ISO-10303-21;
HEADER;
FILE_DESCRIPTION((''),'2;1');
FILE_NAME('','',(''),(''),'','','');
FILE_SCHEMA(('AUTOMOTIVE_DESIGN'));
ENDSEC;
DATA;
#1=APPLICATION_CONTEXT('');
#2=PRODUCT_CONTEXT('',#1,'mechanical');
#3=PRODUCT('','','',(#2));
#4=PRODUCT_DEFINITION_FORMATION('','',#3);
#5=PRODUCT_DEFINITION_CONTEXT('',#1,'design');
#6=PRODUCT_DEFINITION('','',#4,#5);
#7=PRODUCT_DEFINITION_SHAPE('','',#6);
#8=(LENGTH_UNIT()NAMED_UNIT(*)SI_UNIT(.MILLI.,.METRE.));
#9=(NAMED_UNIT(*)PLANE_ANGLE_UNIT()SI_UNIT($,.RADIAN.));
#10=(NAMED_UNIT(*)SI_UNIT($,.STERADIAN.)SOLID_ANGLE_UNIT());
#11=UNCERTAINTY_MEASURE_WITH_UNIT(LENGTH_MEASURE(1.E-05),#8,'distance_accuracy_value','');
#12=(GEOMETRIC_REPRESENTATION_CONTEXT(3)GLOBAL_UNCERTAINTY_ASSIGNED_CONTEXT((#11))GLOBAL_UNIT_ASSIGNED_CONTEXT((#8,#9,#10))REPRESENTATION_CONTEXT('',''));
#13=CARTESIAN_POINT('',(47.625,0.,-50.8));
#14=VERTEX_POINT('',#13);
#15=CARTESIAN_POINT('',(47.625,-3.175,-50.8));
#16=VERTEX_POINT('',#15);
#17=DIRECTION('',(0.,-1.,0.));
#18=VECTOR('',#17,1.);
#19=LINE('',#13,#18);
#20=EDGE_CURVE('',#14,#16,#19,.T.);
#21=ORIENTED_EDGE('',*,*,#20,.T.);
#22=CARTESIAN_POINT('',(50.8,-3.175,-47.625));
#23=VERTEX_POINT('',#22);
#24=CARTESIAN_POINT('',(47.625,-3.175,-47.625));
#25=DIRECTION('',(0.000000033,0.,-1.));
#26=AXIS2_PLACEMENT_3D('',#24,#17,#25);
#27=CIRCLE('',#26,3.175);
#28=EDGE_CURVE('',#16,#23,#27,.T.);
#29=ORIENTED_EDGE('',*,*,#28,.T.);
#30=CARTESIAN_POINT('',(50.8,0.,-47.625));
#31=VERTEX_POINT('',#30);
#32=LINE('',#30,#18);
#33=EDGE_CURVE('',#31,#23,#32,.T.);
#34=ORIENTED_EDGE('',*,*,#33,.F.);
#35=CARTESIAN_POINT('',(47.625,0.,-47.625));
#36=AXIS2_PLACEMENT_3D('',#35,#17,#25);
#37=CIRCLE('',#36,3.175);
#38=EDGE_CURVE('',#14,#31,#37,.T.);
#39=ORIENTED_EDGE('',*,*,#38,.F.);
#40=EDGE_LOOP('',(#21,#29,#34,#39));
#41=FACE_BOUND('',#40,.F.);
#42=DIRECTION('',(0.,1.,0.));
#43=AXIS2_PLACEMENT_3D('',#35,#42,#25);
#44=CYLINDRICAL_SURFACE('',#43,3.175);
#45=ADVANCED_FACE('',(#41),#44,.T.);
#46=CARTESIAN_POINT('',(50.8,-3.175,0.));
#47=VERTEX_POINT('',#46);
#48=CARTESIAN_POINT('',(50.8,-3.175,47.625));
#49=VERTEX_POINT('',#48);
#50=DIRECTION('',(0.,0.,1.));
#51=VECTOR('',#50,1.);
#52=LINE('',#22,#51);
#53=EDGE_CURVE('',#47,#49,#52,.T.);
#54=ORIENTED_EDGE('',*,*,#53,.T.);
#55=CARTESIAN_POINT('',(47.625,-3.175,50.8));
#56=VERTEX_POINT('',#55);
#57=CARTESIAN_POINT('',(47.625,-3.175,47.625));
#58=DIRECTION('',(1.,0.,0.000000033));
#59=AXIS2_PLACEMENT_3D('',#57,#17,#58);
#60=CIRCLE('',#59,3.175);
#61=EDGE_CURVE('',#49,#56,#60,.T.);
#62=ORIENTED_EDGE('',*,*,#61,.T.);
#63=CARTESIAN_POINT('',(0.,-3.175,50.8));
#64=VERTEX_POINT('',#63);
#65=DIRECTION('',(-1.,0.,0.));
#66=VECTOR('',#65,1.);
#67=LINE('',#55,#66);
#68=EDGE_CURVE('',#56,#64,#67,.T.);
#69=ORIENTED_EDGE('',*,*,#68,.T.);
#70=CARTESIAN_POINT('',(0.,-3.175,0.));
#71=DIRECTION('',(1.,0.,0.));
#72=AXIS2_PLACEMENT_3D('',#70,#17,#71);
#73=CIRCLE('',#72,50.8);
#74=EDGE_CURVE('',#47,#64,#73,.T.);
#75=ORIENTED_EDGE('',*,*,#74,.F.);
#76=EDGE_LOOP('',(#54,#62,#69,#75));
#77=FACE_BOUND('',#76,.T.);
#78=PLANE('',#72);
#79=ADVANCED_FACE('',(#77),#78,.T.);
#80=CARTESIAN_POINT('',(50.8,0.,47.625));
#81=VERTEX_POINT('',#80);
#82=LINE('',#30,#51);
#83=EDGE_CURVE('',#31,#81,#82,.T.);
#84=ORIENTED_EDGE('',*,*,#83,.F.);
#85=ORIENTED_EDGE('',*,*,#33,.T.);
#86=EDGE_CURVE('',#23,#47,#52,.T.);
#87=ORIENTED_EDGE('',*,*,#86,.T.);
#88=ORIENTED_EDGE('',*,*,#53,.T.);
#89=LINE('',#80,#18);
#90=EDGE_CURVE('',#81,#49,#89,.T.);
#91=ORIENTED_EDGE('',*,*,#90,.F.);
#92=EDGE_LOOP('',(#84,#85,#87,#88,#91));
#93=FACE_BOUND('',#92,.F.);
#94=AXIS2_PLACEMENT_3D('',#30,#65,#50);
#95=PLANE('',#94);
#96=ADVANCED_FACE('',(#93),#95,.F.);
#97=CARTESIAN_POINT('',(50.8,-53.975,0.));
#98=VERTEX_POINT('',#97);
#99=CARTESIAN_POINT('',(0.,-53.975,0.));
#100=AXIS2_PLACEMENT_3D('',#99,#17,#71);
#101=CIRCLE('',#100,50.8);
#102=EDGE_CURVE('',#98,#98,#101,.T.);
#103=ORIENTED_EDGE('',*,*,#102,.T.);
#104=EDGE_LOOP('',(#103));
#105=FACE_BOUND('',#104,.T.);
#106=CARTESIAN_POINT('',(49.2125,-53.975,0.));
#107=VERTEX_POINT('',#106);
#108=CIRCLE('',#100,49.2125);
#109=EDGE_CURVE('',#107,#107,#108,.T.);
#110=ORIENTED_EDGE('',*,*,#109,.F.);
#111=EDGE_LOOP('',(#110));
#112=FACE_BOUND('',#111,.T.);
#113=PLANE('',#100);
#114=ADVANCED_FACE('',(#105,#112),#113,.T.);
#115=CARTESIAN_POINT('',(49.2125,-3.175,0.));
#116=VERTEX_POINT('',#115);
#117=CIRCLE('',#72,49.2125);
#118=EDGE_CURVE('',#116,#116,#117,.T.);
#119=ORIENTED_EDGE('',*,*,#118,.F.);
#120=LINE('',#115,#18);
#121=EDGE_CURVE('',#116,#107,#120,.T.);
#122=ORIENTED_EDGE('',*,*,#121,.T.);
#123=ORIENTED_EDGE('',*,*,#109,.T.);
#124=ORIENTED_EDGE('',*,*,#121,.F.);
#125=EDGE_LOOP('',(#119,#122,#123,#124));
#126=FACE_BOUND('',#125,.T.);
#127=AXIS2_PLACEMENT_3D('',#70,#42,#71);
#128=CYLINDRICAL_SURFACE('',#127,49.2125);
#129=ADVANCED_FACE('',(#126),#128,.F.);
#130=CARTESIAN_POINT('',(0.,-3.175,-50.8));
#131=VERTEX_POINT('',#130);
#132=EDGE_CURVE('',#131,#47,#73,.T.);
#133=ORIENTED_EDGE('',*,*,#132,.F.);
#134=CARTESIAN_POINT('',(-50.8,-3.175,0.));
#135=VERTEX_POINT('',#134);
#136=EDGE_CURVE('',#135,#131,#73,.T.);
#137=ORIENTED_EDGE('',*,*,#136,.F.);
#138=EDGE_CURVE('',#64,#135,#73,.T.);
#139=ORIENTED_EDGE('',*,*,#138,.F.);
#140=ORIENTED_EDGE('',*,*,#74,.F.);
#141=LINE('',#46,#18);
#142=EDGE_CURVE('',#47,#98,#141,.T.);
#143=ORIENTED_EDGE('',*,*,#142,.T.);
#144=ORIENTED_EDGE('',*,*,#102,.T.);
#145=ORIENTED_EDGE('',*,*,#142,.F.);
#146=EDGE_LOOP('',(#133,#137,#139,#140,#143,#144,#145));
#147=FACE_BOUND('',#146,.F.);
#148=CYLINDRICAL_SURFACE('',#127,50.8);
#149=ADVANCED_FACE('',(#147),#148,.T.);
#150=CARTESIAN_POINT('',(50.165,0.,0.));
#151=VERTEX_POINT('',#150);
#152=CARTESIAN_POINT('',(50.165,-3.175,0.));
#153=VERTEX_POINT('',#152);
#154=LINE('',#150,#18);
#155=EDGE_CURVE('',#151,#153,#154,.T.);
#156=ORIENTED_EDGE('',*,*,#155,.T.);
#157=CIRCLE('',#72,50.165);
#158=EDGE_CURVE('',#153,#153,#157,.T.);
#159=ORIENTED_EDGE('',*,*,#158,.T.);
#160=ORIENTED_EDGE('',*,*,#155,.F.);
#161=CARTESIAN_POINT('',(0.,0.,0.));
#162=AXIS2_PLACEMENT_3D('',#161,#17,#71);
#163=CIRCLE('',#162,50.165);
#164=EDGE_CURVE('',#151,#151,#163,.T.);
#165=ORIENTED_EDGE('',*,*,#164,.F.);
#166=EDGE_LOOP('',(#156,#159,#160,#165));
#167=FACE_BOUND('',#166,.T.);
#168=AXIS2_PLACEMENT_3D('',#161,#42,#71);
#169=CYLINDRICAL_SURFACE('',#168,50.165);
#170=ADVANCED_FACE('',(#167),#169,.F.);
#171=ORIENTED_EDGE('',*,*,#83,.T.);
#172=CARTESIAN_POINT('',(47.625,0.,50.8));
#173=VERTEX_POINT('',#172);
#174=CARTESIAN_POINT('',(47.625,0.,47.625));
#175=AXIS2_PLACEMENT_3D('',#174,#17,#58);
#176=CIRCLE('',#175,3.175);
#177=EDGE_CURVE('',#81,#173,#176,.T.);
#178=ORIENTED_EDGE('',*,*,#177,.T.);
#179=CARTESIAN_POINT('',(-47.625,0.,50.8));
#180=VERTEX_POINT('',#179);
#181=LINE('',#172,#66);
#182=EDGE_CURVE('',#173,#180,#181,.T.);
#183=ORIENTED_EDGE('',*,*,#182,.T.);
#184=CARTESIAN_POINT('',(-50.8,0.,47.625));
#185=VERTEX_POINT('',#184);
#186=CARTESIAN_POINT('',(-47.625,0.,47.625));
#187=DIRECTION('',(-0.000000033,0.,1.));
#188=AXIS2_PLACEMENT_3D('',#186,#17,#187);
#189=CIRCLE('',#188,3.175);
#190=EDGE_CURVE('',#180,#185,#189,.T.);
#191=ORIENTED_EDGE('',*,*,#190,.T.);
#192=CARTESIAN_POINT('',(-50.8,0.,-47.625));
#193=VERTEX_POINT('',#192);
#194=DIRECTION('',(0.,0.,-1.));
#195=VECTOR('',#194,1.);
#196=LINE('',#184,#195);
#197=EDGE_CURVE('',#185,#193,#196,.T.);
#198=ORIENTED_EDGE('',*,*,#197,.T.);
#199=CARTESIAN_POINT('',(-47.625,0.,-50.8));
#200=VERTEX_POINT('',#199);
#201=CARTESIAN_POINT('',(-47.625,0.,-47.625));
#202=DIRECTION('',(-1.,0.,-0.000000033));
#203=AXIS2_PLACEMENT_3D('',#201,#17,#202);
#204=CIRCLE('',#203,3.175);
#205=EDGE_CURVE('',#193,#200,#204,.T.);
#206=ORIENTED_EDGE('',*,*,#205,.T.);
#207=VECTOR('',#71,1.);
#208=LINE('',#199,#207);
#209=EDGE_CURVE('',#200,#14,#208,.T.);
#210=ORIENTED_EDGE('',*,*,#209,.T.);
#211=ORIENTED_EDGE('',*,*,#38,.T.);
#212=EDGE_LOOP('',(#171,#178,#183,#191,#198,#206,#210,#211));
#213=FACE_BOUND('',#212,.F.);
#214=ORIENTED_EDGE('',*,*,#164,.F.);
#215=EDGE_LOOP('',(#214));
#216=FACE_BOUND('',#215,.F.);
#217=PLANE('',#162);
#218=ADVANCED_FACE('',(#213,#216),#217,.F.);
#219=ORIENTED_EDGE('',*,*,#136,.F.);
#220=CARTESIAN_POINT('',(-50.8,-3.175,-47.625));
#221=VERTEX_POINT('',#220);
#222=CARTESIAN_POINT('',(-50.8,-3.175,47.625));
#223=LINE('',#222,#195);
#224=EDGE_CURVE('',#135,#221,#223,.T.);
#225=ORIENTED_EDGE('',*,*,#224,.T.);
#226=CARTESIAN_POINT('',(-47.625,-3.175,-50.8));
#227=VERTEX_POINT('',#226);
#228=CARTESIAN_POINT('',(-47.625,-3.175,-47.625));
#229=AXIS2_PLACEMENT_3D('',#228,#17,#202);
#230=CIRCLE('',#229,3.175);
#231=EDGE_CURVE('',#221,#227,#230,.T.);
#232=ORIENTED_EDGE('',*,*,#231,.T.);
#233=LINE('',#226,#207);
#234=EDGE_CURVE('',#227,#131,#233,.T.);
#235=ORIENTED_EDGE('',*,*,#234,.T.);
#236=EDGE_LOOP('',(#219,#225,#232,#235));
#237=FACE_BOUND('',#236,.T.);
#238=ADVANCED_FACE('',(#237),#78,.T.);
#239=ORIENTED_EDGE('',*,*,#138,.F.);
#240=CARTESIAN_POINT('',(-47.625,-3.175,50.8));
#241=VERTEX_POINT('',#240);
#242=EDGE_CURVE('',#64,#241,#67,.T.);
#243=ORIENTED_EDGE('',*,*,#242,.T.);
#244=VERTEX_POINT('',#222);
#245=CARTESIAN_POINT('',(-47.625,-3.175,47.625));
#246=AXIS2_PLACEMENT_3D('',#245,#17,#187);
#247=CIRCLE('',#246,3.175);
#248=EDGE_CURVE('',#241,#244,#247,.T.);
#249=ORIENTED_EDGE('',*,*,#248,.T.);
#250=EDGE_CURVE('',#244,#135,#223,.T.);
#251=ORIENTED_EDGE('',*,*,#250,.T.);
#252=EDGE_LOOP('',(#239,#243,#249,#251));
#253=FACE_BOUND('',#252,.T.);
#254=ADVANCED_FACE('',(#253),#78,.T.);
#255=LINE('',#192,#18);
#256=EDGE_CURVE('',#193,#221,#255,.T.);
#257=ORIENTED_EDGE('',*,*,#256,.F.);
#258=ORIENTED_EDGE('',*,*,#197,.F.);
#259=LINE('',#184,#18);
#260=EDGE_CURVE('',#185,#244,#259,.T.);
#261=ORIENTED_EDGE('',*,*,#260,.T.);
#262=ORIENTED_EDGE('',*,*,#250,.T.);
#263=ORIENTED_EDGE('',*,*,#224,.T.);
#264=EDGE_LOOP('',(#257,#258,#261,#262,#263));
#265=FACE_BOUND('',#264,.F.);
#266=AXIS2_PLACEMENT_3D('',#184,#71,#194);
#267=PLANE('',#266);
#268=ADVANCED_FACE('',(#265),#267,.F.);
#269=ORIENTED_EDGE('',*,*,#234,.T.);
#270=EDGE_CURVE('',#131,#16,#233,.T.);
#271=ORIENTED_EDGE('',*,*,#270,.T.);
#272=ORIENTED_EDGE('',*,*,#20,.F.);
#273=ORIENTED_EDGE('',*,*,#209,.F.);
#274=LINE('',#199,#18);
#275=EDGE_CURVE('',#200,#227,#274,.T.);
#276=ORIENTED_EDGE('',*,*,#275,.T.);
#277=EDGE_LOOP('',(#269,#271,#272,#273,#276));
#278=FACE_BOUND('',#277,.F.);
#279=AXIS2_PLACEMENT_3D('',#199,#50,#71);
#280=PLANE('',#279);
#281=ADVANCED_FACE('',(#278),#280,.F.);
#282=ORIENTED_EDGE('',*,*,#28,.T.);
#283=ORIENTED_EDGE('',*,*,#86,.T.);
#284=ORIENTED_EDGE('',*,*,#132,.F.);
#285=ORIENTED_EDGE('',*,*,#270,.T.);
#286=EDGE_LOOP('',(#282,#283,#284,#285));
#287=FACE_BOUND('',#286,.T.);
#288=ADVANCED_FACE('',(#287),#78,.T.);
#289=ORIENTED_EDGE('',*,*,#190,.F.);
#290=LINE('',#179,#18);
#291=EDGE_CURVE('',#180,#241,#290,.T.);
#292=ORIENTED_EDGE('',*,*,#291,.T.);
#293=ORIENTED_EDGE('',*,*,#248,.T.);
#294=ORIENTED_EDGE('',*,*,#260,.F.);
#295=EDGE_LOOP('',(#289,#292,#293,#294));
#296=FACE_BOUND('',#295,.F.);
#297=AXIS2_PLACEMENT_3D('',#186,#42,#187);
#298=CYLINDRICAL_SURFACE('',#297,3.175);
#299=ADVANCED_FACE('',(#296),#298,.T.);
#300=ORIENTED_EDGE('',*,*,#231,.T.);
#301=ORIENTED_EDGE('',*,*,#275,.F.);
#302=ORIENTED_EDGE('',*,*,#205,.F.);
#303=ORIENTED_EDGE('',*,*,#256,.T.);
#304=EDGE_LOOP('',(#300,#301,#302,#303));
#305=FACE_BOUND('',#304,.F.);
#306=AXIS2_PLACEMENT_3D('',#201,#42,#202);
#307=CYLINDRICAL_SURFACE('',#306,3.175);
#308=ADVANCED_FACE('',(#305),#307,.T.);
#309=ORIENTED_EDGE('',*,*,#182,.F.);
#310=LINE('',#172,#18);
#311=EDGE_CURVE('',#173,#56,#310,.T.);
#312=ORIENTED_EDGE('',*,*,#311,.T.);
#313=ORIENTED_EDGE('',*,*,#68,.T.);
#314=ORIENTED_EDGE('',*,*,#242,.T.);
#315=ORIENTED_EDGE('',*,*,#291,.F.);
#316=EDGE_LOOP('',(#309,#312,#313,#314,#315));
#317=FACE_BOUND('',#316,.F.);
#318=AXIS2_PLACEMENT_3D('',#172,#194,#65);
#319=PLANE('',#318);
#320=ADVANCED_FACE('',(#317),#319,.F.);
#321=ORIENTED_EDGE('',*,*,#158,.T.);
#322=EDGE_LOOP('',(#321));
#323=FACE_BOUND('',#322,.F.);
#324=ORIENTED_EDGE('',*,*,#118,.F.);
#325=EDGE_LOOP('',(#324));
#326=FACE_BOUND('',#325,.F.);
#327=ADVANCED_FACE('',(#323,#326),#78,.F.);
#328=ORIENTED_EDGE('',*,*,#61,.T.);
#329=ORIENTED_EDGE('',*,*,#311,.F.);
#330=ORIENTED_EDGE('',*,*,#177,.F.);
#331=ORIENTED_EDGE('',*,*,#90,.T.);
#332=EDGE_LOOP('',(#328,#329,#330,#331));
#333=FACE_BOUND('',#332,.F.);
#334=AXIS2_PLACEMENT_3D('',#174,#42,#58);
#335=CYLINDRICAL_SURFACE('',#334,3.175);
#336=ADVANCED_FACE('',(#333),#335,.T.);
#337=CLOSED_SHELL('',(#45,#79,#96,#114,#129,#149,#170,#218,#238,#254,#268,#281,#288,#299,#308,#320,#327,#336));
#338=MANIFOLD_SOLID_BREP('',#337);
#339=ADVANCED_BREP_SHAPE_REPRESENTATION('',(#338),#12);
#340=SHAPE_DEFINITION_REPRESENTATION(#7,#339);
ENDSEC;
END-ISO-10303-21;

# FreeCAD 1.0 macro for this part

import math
import FreeCAD as App
import Part
import Sketcher
Q = App.Units.Quantity

doc = App.newDocument("Part")
params = doc.addObject("Spreadsheet::Sheet", "Params")
for row, (alias, value) in enumerate([
    ("sketch1_diameter", "3.95 in"),
    ("sketch1_radius", "0.125 in"),
    ("pad1_length", "0.125 in"),
    ("sketch2_diameter", "4 in"),
    ("sketch2_diameter2", "3.875 in"),
    ("pad2_length", "2 in"),
], start=1):
    params.set(f"A{row}", alias)
    params.set(f"B{row}", "=" + value)
    params.setAlias(f"B{row}", alias)

body = doc.addObject("PartDesign::Body", "Body")

# Sketch on XZ plane
sketch1 = body.newObject("Sketcher::SketchObject", "Sketch")
sketch1.AttachmentSupport = (doc.getObject("XZ_Plane"), [""])
sketch1.MapMode = "FlatFace"
sketch1.addGeometry(Part.ArcOfCircle(Part.Circle(App.Vector(47.6, 47.6, 0), App.Vector(0, 0, 1), 3.2), math.radians(0), math.radians(90)), False)
sketch1.addGeometry(Part.LineSegment(App.Vector(47.6, 50.8, 0), App.Vector(-47.6, 50.8, 0)), False)
sketch1.addGeometry(Part.ArcOfCircle(Part.Circle(App.Vector(-47.6, 47.6, 0), App.Vector(0, 0, 1), 3.2), math.radians(90), math.radians(180)), False)
sketch1.addGeometry(Part.LineSegment(App.Vector(-50.8, 47.6, 0), App.Vector(-50.8, -47.6, 0)), False)
sketch1.addGeometry(Part.ArcOfCircle(Part.Circle(App.Vector(-47.6, -47.6, 0), App.Vector(0, 0, 1), 3.2), math.radians(-180), math.radians(-90)), False)
sketch1.addGeometry(Part.LineSegment(App.Vector(-47.6, -50.8, 0), App.Vector(47.6, -50.8, 0)), False)
sketch1.addGeometry(Part.ArcOfCircle(Part.Circle(App.Vector(47.6, -47.6, 0), App.Vector(0, 0, 1), 3.2), math.radians(-90), math.radians(0)), False)
sketch1.addGeometry(Part.LineSegment(App.Vector(50.8, -47.6, 0), App.Vector(50.8, 47.6, 0)), False)
sketch1.addGeometry(Part.Circle(App.Vector(0, 0, 0), App.Vector(0, 0, 1), 50.2), False)
sketch1.addConstraint(Sketcher.Constraint("Tangent", 0, 2, 1, 1))
sketch1.addConstraint(Sketcher.Constraint("Tangent", 1, 2, 2, 1))
sketch1.addConstraint(Sketcher.Constraint("Tangent", 2, 2, 3, 1))
sketch1.addConstraint(Sketcher.Constraint("Tangent", 3, 2, 4, 1))
sketch1.addConstraint(Sketcher.Constraint("Tangent", 4, 2, 5, 1))
sketch1.addConstraint(Sketcher.Constraint("Tangent", 5, 2, 6, 1))
sketch1.addConstraint(Sketcher.Constraint("Tangent", 6, 2, 7, 1))
sketch1.addConstraint(Sketcher.Constraint("Tangent", 7, 2, 0, 1))
sketch1.addConstraint(Sketcher.Constraint("Horizontal", 1))
sketch1.addConstraint(Sketcher.Constraint("Vertical", 3))
sketch1.addConstraint(Sketcher.Constraint("Horizontal", 5))
sketch1.addConstraint(Sketcher.Constraint("Vertical", 7))
sketch1.addConstraint(Sketcher.Constraint("Coincident", 8, 3, -1, 1))
sketch1.addConstraint(Sketcher.Constraint("Equal", 0, 2))
sketch1.addConstraint(Sketcher.Constraint("Equal", 2, 4))
sketch1.addConstraint(Sketcher.Constraint("Equal", 4, 6))
sketch1.addConstraint(Sketcher.Constraint("Symmetric", 0, 3, 4, 3, -1, 1))
sketch1.addConstraint(Sketcher.Constraint("Equal", 5, 3))
sketch1.addConstraint(Sketcher.Constraint("Diameter", 8, Q("3.95 in")))
sketch1.addConstraint(Sketcher.Constraint("DistanceY", -1, 1, 0, 2, Q("2 in")))
sketch1.addConstraint(Sketcher.Constraint("Radius", 0, Q("0.125 in")))
sketch1.setExpression("Constraints[18]", "Params.sketch1_diameter")
sketch1.setExpression("Constraints[20]", "Params.sketch1_radius")
pad1 = body.newObject("PartDesign::Pad", "Pad")
pad1.Profile = sketch1
pad1.setExpression("Length", "Params.pad1_length")

# Sketch on XZ plane
sketch2 = body.newObject("Sketcher::SketchObject", "Sketch001")
sketch2.AttachmentSupport = (doc.getObject("XZ_Plane"), [""])
sketch2.MapMode = "FlatFace"
sketch2.AttachmentOffset = App.Placement(App.Vector(0, 0, 0.125 * 25.4), App.Rotation())
sketch2.addGeometry(Part.Circle(App.Vector(0, 0, 0), App.Vector(0, 0, 1), 51), False)
sketch2.addGeometry(Part.Circle(App.Vector(0, 0, 0), App.Vector(0, 0, 1), 49), False)
sketch2.addConstraint(Sketcher.Constraint("Coincident", 0, 3, -1, 1))
sketch2.addConstraint(Sketcher.Constraint("Coincident", 1, 3, -1, 1))
sketch2.addConstraint(Sketcher.Constraint("Diameter", 0, Q("4 in")))
sketch2.addConstraint(Sketcher.Constraint("Diameter", 1, Q("3.875 in")))
sketch2.setExpression("Constraints[2]", "Params.sketch2_diameter")
sketch2.setExpression("Constraints[3]", "Params.sketch2_diameter2")
pad2 = body.newObject("PartDesign::Pad", "Pad001")
pad2.Profile = sketch2
pad2.setExpression("Length", "Params.pad2_length")

doc.recompute()
